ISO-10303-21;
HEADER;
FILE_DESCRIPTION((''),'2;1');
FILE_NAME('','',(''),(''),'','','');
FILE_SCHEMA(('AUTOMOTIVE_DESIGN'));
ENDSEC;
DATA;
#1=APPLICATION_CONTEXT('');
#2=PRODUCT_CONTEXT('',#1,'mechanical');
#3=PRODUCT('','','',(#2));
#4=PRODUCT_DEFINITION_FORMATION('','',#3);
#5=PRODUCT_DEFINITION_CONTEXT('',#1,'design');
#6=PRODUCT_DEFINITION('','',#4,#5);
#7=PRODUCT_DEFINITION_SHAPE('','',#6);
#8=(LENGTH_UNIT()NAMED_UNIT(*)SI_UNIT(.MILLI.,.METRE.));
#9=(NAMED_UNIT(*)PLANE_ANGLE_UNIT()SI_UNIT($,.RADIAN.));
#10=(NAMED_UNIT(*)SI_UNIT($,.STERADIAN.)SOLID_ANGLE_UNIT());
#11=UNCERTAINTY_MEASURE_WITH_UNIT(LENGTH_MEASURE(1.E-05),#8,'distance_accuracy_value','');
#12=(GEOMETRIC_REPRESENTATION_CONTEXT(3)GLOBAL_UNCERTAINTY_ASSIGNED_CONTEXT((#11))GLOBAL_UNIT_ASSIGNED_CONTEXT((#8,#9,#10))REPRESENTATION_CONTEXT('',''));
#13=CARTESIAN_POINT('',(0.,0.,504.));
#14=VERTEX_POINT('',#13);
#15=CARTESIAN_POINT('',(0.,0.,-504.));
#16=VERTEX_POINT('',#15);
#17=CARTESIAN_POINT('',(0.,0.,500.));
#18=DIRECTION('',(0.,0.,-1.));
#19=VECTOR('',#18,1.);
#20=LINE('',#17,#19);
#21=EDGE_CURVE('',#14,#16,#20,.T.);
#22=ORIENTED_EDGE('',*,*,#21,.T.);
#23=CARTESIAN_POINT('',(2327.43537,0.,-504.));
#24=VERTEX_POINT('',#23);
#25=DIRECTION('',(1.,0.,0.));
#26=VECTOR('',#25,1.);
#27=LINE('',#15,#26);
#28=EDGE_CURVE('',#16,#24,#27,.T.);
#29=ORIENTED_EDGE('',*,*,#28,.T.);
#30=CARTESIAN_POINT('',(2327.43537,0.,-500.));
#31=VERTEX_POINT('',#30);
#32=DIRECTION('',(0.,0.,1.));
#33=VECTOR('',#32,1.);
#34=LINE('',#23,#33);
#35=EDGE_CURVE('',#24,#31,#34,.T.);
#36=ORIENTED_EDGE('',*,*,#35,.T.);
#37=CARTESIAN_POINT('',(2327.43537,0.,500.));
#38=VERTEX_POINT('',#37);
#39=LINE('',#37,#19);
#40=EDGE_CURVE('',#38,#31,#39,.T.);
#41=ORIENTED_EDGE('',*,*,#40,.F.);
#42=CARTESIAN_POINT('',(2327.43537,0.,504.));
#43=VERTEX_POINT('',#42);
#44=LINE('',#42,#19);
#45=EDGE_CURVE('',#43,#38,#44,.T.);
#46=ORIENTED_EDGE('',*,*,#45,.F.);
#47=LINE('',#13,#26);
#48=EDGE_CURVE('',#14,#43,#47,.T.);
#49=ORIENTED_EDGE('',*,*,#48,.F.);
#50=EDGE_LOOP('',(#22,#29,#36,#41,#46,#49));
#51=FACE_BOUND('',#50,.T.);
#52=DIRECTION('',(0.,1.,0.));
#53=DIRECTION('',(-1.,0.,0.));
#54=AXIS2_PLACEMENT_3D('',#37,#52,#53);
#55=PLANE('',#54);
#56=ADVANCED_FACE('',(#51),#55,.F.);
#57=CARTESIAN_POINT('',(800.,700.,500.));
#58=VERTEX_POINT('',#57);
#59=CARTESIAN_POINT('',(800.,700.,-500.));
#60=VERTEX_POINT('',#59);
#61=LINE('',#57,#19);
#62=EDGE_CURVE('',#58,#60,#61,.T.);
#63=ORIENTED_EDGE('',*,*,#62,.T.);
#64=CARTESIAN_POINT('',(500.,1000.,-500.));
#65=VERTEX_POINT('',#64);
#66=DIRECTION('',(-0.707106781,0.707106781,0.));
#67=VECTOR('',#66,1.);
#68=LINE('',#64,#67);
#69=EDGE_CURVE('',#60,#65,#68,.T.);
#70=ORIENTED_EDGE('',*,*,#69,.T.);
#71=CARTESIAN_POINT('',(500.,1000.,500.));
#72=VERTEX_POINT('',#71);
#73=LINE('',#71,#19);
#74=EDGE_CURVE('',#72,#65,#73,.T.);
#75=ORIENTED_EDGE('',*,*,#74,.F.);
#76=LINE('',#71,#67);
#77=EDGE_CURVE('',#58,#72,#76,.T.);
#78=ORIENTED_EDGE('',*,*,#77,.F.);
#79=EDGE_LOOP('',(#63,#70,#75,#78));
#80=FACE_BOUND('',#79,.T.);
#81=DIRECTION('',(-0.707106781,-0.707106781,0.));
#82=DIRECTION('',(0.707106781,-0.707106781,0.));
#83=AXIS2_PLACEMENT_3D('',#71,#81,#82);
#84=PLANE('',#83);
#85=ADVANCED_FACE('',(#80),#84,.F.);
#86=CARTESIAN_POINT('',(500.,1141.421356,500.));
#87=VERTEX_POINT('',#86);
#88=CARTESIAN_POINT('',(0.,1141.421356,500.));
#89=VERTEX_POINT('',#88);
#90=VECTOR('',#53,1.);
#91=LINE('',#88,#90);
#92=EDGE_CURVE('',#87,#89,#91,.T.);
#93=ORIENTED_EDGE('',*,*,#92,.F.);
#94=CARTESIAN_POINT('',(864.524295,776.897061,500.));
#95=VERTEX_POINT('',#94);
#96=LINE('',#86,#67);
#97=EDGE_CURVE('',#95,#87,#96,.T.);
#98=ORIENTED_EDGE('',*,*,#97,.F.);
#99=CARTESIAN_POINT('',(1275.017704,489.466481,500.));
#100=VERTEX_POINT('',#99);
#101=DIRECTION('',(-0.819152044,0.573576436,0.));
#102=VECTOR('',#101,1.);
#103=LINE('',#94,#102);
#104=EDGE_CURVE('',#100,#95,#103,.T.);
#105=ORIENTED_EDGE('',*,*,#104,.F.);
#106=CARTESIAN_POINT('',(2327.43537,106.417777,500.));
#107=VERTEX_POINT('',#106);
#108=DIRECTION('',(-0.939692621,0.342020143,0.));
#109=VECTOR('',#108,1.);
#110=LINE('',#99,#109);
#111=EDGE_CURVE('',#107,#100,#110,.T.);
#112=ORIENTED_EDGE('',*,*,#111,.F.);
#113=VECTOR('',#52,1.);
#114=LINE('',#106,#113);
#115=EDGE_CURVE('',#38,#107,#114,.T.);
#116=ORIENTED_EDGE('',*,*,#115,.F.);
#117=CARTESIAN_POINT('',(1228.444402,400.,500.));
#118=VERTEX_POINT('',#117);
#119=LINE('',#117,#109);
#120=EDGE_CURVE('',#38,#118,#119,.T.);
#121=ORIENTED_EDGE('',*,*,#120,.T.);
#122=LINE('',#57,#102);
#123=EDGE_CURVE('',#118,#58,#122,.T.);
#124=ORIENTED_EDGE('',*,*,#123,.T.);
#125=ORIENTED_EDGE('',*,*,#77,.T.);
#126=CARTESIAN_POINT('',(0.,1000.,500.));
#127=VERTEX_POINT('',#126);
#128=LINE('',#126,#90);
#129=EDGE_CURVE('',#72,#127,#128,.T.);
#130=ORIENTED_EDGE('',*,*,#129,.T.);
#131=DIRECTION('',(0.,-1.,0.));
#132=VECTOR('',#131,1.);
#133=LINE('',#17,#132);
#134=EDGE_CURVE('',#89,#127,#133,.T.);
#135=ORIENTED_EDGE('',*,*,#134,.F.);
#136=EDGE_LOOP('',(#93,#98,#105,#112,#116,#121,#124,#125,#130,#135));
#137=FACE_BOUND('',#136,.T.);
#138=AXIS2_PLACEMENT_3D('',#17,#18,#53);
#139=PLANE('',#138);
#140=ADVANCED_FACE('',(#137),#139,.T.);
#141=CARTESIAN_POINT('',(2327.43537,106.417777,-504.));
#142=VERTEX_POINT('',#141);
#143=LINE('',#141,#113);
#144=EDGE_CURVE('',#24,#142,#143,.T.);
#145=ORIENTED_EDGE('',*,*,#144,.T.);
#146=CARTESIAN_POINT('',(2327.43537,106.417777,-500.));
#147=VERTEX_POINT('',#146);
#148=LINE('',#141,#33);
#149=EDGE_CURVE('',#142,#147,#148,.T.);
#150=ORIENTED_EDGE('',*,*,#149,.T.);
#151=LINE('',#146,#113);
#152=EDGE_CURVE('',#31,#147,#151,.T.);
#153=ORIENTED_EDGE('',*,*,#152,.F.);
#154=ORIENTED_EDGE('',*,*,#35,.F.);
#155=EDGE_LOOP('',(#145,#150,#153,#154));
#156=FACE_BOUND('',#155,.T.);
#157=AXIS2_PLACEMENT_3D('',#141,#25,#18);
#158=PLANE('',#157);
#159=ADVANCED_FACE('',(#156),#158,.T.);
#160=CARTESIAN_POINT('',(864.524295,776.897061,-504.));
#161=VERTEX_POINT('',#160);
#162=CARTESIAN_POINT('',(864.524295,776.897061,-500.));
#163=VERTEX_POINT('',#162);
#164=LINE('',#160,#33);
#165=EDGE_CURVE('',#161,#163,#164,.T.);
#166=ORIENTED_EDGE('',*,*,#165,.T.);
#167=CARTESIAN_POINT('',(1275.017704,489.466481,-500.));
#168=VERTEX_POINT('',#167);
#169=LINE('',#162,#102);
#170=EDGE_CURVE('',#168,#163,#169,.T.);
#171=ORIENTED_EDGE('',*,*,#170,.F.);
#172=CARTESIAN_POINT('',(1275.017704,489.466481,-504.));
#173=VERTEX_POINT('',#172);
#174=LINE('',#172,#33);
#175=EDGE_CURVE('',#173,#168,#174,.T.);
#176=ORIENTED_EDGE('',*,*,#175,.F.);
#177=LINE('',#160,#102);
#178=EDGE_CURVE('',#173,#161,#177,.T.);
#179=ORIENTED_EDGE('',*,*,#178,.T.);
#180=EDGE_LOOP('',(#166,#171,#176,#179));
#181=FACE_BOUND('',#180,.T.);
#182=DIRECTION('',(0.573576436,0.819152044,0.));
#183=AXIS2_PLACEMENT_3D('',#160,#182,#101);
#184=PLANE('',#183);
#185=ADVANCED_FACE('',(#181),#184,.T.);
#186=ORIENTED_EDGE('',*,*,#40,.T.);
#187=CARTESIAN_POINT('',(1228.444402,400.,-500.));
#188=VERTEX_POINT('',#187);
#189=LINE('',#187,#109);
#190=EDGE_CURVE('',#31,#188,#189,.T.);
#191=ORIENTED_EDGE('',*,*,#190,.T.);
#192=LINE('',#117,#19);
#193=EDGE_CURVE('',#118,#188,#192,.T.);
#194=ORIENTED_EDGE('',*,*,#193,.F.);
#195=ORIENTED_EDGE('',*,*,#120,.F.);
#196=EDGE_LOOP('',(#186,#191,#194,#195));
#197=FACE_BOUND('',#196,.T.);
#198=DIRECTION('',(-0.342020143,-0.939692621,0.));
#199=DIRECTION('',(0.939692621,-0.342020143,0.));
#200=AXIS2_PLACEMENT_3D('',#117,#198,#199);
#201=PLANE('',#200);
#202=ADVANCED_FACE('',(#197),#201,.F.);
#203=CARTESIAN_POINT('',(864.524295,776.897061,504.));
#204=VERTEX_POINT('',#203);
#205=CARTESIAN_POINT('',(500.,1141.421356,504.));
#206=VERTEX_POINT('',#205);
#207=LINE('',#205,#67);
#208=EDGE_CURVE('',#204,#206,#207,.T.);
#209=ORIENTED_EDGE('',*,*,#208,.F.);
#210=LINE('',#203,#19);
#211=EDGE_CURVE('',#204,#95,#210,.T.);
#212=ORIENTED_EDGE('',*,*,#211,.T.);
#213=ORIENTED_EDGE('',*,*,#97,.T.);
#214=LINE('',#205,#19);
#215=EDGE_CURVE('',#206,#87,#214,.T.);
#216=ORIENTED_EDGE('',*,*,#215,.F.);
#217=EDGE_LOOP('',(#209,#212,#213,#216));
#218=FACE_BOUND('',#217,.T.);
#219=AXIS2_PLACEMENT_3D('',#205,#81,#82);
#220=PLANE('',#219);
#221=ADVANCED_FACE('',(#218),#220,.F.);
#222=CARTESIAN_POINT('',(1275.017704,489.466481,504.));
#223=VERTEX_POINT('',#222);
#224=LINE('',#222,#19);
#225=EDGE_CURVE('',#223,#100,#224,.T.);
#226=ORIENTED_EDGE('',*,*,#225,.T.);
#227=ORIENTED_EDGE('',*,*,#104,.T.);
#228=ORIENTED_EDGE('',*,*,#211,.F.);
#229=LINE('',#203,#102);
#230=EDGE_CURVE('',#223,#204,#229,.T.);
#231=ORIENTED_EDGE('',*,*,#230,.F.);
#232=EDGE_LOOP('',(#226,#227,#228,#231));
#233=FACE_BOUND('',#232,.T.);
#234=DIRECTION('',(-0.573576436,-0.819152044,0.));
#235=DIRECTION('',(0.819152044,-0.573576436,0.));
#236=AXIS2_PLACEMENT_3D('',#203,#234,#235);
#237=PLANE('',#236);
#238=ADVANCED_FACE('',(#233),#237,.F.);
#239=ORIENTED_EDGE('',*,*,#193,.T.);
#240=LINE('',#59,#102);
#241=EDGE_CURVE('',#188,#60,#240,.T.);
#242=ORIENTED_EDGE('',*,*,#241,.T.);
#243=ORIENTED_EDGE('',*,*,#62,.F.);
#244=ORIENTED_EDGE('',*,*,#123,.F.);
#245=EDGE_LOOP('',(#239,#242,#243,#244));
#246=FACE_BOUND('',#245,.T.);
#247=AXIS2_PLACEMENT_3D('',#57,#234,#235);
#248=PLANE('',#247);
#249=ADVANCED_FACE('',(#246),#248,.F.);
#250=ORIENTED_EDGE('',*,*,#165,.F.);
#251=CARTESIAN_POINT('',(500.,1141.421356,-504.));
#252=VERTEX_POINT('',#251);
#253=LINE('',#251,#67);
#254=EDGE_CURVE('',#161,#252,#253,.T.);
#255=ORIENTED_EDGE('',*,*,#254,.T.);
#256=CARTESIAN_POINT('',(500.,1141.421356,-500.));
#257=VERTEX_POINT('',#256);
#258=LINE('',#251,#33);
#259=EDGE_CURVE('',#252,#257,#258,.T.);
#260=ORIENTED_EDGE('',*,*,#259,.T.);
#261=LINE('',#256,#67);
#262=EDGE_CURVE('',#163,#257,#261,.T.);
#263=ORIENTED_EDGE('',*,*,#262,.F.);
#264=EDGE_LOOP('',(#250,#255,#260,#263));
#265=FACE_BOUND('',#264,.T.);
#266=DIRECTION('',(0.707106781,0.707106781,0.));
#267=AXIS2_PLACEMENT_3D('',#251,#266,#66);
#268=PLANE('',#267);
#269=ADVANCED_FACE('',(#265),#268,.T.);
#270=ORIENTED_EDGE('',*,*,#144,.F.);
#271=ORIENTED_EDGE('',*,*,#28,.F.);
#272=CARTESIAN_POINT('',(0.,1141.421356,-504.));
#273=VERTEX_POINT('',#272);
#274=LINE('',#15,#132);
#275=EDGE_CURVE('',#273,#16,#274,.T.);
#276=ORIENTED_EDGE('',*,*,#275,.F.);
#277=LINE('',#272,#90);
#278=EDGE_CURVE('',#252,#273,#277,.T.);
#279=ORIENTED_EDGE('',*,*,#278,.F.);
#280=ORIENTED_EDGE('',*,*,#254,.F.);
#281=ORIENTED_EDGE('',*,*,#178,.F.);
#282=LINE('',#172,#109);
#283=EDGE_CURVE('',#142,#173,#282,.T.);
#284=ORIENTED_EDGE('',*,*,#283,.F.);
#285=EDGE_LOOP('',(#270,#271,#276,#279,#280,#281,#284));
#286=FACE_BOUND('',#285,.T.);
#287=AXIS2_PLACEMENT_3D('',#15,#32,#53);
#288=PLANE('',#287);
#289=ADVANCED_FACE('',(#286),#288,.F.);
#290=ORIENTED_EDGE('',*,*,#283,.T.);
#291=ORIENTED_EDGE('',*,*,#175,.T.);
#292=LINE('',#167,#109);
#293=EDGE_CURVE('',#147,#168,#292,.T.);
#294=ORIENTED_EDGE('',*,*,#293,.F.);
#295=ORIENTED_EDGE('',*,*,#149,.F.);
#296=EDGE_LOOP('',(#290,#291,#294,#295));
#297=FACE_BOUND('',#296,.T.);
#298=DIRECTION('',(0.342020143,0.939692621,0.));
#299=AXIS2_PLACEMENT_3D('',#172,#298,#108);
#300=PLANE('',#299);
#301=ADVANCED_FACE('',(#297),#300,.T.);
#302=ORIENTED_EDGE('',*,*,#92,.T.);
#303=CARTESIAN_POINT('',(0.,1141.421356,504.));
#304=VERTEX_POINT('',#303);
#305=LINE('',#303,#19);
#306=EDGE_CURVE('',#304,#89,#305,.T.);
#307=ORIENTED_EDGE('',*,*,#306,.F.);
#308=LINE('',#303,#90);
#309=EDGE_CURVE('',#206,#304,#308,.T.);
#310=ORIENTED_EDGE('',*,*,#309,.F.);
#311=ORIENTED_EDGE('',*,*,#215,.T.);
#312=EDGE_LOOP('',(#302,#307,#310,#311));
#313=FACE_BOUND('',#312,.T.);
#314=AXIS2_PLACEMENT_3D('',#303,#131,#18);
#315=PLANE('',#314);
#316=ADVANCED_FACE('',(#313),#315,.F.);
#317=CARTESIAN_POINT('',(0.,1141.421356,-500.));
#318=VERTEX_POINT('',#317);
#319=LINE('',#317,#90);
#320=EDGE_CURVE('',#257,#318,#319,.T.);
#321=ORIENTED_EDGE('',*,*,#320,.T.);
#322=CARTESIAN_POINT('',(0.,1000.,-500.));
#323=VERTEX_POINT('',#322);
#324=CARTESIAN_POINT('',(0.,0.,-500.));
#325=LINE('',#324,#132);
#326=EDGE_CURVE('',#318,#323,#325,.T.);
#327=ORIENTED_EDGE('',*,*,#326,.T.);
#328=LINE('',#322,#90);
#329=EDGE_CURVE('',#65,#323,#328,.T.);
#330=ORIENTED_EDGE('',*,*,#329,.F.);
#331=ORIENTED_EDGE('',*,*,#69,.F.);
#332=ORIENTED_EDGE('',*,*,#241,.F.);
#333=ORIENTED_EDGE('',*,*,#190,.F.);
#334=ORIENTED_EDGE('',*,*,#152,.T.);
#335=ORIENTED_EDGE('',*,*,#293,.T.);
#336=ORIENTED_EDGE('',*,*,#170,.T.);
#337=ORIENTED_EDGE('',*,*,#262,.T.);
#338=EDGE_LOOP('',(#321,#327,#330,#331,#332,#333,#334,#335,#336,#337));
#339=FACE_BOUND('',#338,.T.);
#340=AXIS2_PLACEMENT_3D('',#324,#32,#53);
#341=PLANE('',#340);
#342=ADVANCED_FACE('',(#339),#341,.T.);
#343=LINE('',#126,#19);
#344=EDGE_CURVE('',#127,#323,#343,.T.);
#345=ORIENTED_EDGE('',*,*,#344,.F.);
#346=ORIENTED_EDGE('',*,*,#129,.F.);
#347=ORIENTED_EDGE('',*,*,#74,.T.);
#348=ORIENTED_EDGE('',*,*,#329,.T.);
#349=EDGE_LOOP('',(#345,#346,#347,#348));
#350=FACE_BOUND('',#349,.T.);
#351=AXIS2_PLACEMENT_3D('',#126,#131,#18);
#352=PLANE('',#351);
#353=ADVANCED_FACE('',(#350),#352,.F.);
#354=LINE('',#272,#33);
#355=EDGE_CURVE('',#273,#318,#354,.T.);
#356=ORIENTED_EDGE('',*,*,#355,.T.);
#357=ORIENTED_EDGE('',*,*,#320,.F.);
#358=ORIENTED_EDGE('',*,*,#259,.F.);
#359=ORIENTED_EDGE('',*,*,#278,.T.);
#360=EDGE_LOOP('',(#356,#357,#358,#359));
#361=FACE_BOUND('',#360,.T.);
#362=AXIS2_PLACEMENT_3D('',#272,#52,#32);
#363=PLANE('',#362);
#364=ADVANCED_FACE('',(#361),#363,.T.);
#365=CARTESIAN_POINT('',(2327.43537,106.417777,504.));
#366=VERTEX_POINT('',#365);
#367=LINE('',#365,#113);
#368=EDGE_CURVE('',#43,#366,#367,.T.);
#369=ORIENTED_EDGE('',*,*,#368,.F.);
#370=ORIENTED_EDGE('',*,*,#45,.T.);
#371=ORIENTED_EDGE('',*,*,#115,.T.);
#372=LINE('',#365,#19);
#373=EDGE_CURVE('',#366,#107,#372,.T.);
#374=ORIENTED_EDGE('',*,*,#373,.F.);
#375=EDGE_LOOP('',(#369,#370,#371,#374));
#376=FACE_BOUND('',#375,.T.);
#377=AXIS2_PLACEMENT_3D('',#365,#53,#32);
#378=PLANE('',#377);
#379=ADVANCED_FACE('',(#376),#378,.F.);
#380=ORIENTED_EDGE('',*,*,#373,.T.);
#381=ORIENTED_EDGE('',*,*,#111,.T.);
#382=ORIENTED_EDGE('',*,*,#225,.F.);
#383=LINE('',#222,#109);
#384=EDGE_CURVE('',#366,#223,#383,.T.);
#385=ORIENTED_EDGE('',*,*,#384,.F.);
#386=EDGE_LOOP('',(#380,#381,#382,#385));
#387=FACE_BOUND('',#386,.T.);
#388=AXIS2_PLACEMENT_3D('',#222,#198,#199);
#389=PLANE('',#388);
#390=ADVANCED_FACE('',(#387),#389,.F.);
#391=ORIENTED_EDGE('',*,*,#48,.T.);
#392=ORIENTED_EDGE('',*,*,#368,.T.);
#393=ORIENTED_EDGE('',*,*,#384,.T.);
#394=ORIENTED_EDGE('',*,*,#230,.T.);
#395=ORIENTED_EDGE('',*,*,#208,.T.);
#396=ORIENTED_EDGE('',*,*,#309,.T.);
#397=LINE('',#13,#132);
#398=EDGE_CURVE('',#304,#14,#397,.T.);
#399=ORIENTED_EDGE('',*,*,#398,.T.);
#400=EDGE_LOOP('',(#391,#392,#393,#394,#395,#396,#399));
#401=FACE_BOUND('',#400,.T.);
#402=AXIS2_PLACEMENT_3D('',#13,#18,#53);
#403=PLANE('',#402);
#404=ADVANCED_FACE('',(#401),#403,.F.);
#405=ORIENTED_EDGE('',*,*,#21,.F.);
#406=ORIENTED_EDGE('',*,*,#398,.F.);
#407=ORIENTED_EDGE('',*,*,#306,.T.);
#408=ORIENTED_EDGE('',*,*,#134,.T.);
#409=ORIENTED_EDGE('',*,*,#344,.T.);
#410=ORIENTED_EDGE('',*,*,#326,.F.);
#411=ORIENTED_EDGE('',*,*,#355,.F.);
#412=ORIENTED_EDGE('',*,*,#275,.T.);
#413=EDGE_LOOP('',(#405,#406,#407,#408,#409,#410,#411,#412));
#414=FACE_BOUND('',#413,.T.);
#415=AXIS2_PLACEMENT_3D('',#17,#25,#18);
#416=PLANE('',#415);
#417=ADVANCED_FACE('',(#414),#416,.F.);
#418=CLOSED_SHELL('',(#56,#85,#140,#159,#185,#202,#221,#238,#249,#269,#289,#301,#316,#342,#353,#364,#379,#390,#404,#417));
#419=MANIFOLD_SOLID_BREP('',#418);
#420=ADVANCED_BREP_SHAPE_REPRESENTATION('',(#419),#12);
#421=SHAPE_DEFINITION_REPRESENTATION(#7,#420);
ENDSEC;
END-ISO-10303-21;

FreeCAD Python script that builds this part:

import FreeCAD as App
import Part
import Sketcher
Q = App.Units.Quantity


def add_polygon(sketch, points):
    """Adds a closed chain of lines whose ends are joined by coincident constraints."""
    first, n = sketch.GeometryCount, len(points)
    for a, b in zip(points, points[1:] + points[:1]):
        sketch.addGeometry(Part.LineSegment(App.Vector(*a, 0), App.Vector(*b, 0)), False)
    for i in range(n):
        sketch.addConstraint(Sketcher.Constraint("Coincident", first + i, 2, first + (i + 1) % n, 1))

doc = App.newDocument("Part")
body = doc.addObject("PartDesign::Body", "Body")

# Sketch on XY plane
sketch1 = body.newObject("Sketcher::SketchObject", "Sketch")
sketch1.AttachmentSupport = (doc.getObject("XY_Plane"), [""])
sketch1.MapMode = "FlatFace"
add_polygon(sketch1, [(0, 1000), (0, 0), (2327, 0), (1228, 400), (800, 700), (500, 1000)])  # lines 0-5
sketch1.addConstraint(Sketcher.Constraint("Vertical", 0))
sketch1.addConstraint(Sketcher.Constraint("Horizontal", 1))
sketch1.addConstraint(Sketcher.Constraint("Horizontal", 5))
sketch1.addConstraint(Sketcher.Constraint("Coincident", 0, 2, -1, 1))
sketch1.addConstraint(Sketcher.Constraint("DistanceX", 5, 2, 5, 1, 500.0))
sketch1.addConstraint(Sketcher.Constraint("DistanceY", 0, 2, 0, 1, 1000.0))
sketch1.addConstraint(Sketcher.Constraint("Angle", 2, Q("160 deg")))
sketch1.addConstraint(Sketcher.Constraint("Angle", 3, Q("145 deg")))
sketch1.addConstraint(Sketcher.Constraint("Angle", 4, Q("135 deg")))
sketch1.addConstraint(Sketcher.Constraint("DistanceY", -1, 1, 2, 2, 400.0))
sketch1.addConstraint(Sketcher.Constraint("DistanceX", -1, 1, 3, 2, 800.0))
pad1 = body.newObject("PartDesign::Pad", "Pad")
pad1.Profile = sketch1
pad1.Length = 1000
pad1.Midplane = True

# Sketch on XY plane
sketch2 = body.newObject("Sketcher::SketchObject", "Sketch001")
sketch2.AttachmentSupport = (doc.getObject("XY_Plane"), [""])
sketch2.MapMode = "FlatFace"
sketch2.AttachmentOffset = App.Placement(App.Vector(0, 0, 500), App.Rotation())
add_polygon(sketch2, [(0, 1141), (0, 0), (2327, 0), (2327, 106), (1275, 489), (865, 777), (500, 1141)])  # lines 0-6
sketch2.addConstraint(Sketcher.Constraint("Vertical", 0))
sketch2.addConstraint(Sketcher.Constraint("Horizontal", 1))
sketch2.addConstraint(Sketcher.Constraint("Vertical", 2))
sketch2.addConstraint(Sketcher.Constraint("Horizontal", 6))
sketch2.addConstraint(Sketcher.Constraint("Coincident", 0, 2, -1, 1))
sketch2.addConstraint(Sketcher.Constraint("DistanceX", 6, 2, 6, 1, 500.0))
sketch2.addConstraint(Sketcher.Constraint("Angle", 3, Q("160 deg")))
sketch2.addConstraint(Sketcher.Constraint("Angle", 4, Q("145 deg")))
sketch2.addConstraint(Sketcher.Constraint("Angle", 5, Q("135 deg")))
sketch2.addConstraint(Sketcher.Constraint("DistanceX", 1, 1, 1, 2, 2327.43537))
sketch2.addConstraint(Sketcher.Constraint("DistanceY", 0, 2, 0, 1, 1141.421356))
sketch2.addConstraint(Sketcher.Constraint("DistanceY", 2, 1, 2, 2, 106.417777))
sketch2.addConstraint(Sketcher.Constraint("DistanceY", -1, 1, 3, 2, 489.466481))
pad2 = body.newObject("PartDesign::Pad", "Pad001")
pad2.Profile = sketch2
pad2.Length = 4
doc.recompute()

mirrored = body.newObject("PartDesign::Mirrored", "Mirrored")
mirrored.Originals = [pad2]
mirrored.MirrorPlane = (doc.getObject("XY_Plane"), [""])
body.Tip = mirrored

doc.recompute()
